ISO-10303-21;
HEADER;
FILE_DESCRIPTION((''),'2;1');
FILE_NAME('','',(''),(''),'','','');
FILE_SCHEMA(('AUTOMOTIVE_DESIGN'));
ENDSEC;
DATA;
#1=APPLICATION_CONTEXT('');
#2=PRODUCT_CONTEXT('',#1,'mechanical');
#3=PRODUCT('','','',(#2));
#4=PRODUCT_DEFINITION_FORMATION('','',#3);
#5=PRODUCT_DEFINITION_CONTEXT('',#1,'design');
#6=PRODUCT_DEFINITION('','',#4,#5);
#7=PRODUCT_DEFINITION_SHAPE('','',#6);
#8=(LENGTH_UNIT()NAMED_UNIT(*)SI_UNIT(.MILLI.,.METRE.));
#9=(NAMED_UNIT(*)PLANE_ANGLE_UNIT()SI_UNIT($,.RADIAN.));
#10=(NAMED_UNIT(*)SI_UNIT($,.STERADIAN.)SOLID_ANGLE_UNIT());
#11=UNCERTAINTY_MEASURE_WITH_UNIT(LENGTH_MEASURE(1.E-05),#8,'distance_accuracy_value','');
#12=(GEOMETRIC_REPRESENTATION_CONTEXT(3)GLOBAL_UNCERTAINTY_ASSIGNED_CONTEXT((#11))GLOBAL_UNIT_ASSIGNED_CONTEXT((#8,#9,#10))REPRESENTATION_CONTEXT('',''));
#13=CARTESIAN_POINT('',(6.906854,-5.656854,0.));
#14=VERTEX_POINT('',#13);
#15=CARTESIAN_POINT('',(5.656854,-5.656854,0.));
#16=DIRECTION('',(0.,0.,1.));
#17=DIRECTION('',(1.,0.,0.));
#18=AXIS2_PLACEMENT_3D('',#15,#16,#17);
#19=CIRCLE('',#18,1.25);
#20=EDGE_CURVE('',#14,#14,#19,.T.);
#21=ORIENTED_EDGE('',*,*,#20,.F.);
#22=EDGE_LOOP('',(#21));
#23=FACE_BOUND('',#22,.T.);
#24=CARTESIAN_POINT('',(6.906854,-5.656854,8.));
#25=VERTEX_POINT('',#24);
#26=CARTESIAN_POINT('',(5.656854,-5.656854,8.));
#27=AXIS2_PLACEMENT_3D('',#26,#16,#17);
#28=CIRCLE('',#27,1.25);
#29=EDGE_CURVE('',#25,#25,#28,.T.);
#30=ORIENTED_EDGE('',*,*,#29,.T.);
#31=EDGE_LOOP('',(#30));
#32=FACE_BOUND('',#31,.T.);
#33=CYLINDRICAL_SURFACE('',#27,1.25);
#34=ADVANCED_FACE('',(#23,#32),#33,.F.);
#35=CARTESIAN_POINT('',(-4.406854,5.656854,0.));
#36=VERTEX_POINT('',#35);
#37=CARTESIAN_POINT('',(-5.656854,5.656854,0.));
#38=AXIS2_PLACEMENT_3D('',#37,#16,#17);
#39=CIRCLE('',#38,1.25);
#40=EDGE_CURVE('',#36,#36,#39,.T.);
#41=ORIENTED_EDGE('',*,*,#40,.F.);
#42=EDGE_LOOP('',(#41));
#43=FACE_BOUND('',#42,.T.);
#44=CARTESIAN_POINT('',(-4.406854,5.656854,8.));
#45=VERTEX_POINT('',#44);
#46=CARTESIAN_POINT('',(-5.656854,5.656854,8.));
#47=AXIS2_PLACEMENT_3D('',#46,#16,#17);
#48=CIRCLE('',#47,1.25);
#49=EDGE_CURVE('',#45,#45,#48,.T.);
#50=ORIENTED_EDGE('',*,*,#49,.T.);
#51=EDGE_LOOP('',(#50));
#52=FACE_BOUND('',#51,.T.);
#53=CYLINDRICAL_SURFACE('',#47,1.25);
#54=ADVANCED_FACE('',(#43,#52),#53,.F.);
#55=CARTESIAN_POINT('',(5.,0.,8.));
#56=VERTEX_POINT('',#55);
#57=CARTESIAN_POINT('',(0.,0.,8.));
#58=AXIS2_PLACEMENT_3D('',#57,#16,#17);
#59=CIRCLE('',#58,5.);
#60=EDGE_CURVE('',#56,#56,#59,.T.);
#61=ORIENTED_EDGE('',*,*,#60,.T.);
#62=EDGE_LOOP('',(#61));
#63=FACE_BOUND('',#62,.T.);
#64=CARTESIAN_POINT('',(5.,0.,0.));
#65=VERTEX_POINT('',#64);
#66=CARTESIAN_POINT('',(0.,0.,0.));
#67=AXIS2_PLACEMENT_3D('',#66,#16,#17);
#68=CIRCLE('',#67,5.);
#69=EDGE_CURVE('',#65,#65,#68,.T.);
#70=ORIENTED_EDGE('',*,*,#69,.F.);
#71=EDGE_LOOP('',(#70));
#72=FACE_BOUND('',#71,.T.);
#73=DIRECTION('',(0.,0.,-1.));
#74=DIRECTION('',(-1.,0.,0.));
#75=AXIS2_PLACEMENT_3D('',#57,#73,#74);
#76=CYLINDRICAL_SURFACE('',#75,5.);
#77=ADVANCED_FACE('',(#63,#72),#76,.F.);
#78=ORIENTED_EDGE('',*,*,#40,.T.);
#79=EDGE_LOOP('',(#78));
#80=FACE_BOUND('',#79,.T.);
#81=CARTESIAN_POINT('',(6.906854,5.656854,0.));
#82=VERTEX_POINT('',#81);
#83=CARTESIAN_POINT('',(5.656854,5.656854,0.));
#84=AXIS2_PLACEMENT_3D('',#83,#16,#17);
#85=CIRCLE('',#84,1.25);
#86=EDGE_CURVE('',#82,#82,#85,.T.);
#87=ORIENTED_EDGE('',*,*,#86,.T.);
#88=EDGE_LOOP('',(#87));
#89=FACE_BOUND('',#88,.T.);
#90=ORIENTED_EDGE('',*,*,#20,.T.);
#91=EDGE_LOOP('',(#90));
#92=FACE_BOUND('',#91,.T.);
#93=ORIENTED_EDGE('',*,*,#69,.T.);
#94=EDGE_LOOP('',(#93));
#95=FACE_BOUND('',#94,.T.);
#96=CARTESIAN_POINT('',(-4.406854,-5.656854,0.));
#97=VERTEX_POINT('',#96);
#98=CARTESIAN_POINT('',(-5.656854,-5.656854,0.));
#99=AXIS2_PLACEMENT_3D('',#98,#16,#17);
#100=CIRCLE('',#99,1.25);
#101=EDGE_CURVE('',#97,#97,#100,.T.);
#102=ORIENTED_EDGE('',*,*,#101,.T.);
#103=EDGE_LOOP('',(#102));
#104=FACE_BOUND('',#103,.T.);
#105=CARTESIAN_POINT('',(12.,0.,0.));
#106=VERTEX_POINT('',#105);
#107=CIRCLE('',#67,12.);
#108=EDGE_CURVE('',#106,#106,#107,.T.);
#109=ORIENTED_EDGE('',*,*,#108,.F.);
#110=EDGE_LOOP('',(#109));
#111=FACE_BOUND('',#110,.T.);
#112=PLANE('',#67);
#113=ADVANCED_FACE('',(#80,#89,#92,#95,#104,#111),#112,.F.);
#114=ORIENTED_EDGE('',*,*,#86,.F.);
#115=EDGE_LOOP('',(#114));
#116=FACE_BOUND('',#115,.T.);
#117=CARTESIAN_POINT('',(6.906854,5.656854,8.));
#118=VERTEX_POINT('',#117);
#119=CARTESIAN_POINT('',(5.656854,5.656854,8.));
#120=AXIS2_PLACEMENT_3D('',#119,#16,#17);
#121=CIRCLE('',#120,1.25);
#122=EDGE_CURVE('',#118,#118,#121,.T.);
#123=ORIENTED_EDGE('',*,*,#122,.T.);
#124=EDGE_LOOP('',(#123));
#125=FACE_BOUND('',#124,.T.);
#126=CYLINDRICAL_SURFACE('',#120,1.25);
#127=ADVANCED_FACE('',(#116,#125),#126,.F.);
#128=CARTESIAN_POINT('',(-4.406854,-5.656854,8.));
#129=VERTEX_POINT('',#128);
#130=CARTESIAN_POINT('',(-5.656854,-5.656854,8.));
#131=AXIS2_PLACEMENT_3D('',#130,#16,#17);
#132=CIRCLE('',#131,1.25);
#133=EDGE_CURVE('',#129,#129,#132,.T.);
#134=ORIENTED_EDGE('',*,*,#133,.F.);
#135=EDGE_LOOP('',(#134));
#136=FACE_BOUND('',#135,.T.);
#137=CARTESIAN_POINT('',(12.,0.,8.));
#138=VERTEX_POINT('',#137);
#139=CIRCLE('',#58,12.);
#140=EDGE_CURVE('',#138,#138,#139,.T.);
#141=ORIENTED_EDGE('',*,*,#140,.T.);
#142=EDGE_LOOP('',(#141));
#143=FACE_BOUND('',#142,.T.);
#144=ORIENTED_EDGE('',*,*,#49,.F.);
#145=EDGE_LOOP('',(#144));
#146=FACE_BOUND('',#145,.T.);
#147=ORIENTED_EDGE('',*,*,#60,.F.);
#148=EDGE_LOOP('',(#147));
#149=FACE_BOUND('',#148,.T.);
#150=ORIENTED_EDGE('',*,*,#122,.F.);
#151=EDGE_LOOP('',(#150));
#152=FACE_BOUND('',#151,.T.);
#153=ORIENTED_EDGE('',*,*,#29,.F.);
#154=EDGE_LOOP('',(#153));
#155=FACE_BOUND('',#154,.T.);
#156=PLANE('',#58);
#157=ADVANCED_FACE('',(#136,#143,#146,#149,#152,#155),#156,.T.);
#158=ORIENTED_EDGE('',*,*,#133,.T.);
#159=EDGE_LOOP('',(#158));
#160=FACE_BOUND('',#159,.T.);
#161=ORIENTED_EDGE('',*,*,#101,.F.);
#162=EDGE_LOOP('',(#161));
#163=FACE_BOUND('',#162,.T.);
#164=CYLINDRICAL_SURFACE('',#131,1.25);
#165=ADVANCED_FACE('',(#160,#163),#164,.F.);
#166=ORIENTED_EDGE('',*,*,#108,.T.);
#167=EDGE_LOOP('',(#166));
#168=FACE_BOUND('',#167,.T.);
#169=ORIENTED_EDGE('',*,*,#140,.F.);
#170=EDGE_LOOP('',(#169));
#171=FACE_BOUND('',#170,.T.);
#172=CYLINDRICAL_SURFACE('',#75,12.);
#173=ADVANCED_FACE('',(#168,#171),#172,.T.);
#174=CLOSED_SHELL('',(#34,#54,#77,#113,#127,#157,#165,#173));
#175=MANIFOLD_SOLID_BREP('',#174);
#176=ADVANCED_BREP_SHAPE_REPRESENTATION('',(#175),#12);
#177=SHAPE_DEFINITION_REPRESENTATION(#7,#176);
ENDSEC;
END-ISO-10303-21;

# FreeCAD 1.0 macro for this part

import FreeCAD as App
import Part
import Sketcher
Q = App.Units.Quantity

doc = App.newDocument("Part")
body = doc.addObject("PartDesign::Body", "Body")

sketch1 = body.newObject("Sketcher::SketchObject", "Sketch")
sketch1.AttachmentSupport = (doc.getObject("XY_Plane"), [""])
sketch1.MapMode = "FlatFace"
sketch1.addGeometry([
    Part.Circle(App.Vector(0, 0, 0), App.Vector(0, 0, 1), 26),
    Part.Circle(App.Vector(0, 0, 0), App.Vector(0, 0, 1), 15),
], False)
sketch1.addConstraint([
    Sketcher.Constraint("Coincident", 0, 3, -1, 1),
    Sketcher.Constraint("Coincident", 1, 3, -1, 1),
    Sketcher.Constraint("Diameter", 0, Q("52 mm")),
    Sketcher.Constraint("Diameter", 1, Q("29.5 mm")),
])
pad1 = body.newObject("PartDesign::Pad", "Pad")
pad1.Profile = sketch1
pad1.Length = 8

sketch2 = body.newObject("Sketcher::SketchObject", "Sketch001")
sketch2.AttachmentSupport = (doc.getObject("YZ_Plane"), [""])
sketch2.MapMode = "FlatFace"
sketch2.AttachmentOffset = App.Placement(App.Vector(0, 0, 18.186533), App.Rotation())
sketch2.addGeometry([
    Part.LineSegment(App.Vector(10.5, 0, 0), App.Vector(10.5, 8, 0)),
    Part.LineSegment(App.Vector(10.5, 8, 0), App.Vector(7.2, 8, 0)),
    Part.LineSegment(App.Vector(7.2, 8, 0), App.Vector(7.2, 4.7, 0)),
    Part.LineSegment(App.Vector(7.2, 4.7, 0), App.Vector(8.8, 4.7, 0)),
    Part.LineSegment(App.Vector(8.8, 4.7, 0), App.Vector(8.8, 0, 0)),
    Part.LineSegment(App.Vector(8.8, 0, 0), App.Vector(10.5, 0, 0)),
], False)
sketch2.addGeometry(Part.LineSegment(App.Vector(10.5, 8, 0), App.Vector(10.5, 0, 0)), True)
sketch2.addConstraint([
    Sketcher.Constraint("Coincident", 0, 2, 1, 1),
    Sketcher.Constraint("Coincident", 1, 2, 2, 1),
    Sketcher.Constraint("Coincident", 2, 2, 3, 1),
    Sketcher.Constraint("Coincident", 3, 2, 4, 1),
    Sketcher.Constraint("Coincident", 4, 2, 5, 1),
    Sketcher.Constraint("Coincident", 5, 2, 0, 1),
    Sketcher.Constraint("Vertical", 0),
    Sketcher.Constraint("Horizontal", 1),
    Sketcher.Constraint("Vertical", 2),
    Sketcher.Constraint("Horizontal", 3),
    Sketcher.Constraint("Vertical", 4),
    Sketcher.Constraint("Horizontal", 5),
    Sketcher.Constraint("Vertical", 6),
    Sketcher.Constraint("Coincident", 6, 1, 0, 2),
    Sketcher.Constraint("PointOnObject", 4, 2, -1),
    Sketcher.Constraint("PointOnObject", 6, 2, -1),
    Sketcher.Constraint("DistanceY", 0, 1, 0, 2, Q("8 mm")),
    Sketcher.Constraint("DistanceX", 5, 1, 5, 2, Q("1.7 mm")),
    Sketcher.Constraint("DistanceY", 2, 2, 2, 1, Q("3.3 mm")),
    Sketcher.Constraint("DistanceX", 1, 2, 1, 1, Q("3.25 mm")),
    Sketcher.Constraint("DistanceX", -1, 1, 0, 2, Q("10.5 mm")),
])
groove = body.newObject("PartDesign::Groove", "Groove")
groove.Profile = sketch2
groove.ReferenceAxis = (sketch2, ["Axis0"])
groove.Angle = 360
doc.recompute()

linearpattern = body.newObject("PartDesign::LinearPattern", "LinearPattern")
linearpattern.Originals = [groove]
linearpattern.Direction = (doc.getObject("Y_Axis"), [""])
linearpattern.Mode = "offset"
linearpattern.Offset = 21
linearpattern.Occurrences = 2
linearpattern.Reversed = True
body.Tip = linearpattern
doc.recompute()

datumline = body.newObject("PartDesign::Line", "DatumLine")
datumline.Placement = App.Placement(App.Vector(0, 0, 0), App.Rotation(App.Vector(0, 0, 1), App.Vector(-0.5, -0.866025404, 0)))
linearpattern2 = body.newObject("PartDesign::LinearPattern", "LinearPattern001")
linearpattern2.Originals = [groove]
linearpattern2.Direction = (datumline, [""])
linearpattern2.Mode = "offset"
linearpattern2.Offset = 36.373067
linearpattern2.Occurrences = 2
body.Tip = linearpattern2
doc.recompute()

datumline2 = body.newObject("PartDesign::Line", "DatumLine001")
datumline2.Placement = App.Placement(App.Vector(0, 0, 0), App.Rotation(App.Vector(0, 0, 1), App.Vector(-0.866025404, -0.5, 0)))
linearpattern3 = body.newObject("PartDesign::LinearPattern", "LinearPattern002")
linearpattern3.Originals = [groove]
linearpattern3.Direction = (datumline2, [""])
linearpattern3.Mode = "offset"
linearpattern3.Offset = 42
linearpattern3.Occurrences = 2
body.Tip = linearpattern3
doc.recompute()

linearpattern4 = body.newObject("PartDesign::LinearPattern", "LinearPattern003")
linearpattern4.Originals = [groove]
linearpattern4.Direction = (doc.getObject("X_Axis"), [""])
linearpattern4.Mode = "offset"
linearpattern4.Offset = 36.373067
linearpattern4.Occurrences = 2
linearpattern4.Reversed = True
body.Tip = linearpattern4
doc.recompute()

datumline3 = body.newObject("PartDesign::Line", "DatumLine002")
datumline3.Placement = App.Placement(App.Vector(0, 0, 0), App.Rotation(App.Vector(0, 0, 1), App.Vector(-0.866025404, 0.5, 0)))
linearpattern5 = body.newObject("PartDesign::LinearPattern", "LinearPattern004")
linearpattern5.Originals = [groove]
linearpattern5.Direction = (datumline3, [""])
linearpattern5.Mode = "offset"
linearpattern5.Offset = 21
linearpattern5.Occurrences = 2
body.Tip = linearpattern5
body2 = doc.addObject("PartDesign::Body", "Body001")

sketch3 = body2.newObject("Sketcher::SketchObject", "Sketch002")
sketch3.AttachmentSupport = (doc.getObject("XY_Plane001"), [""])
sketch3.MapMode = "FlatFace"
sketch3.addGeometry([
    Part.Circle(App.Vector(0, 0, 0), App.Vector(0, 0, 1), 12),
    Part.Circle(App.Vector(0, 0, 0), App.Vector(0, 0, 1), 5),
], False)
sketch3.addConstraint([
    Sketcher.Constraint("Coincident", 0, 3, -1, 1),
    Sketcher.Constraint("Coincident", 1, 3, -1, 1),
    Sketcher.Constraint("Diameter", 0, Q("24 mm")),
    Sketcher.Constraint("Diameter", 1, Q("10 mm")),
])
pad2 = body2.newObject("PartDesign::Pad", "Pad001")
pad2.Profile = sketch3
pad2.Length = 8

sketch4 = body2.newObject("Sketcher::SketchObject", "Sketch003")
sketch4.AttachmentSupport = (doc.getObject("YZ_Plane001"), [""])
sketch4.MapMode = "FlatFace"
sketch4.AttachmentOffset = App.Placement(App.Vector(0, 0, 5.656854), App.Rotation())
sketch4.addGeometry([
    Part.LineSegment(App.Vector(-5.7, 0, 0), App.Vector(-5.7, 8, 0)),
    Part.LineSegment(App.Vector(-5.7, 8, 0), App.Vector(-6.9, 8, 0)),
    Part.LineSegment(App.Vector(-6.9, 8, 0), App.Vector(-6.9, 0, 0)),
    Part.LineSegment(App.Vector(-6.9, 0, 0), App.Vector(-5.7, 0, 0)),
], False)
sketch4.addGeometry(Part.LineSegment(App.Vector(-5.7, 8, 0), App.Vector(-5.7, 0, 0)), True)
sketch4.addConstraint([
    Sketcher.Constraint("Coincident", 0, 2, 1, 1),
    Sketcher.Constraint("Coincident", 1, 2, 2, 1),
    Sketcher.Constraint("Coincident", 2, 2, 3, 1),
    Sketcher.Constraint("Coincident", 3, 2, 0, 1),
    Sketcher.Constraint("Vertical", 0),
    Sketcher.Constraint("Horizontal", 1),
    Sketcher.Constraint("Vertical", 2),
    Sketcher.Constraint("Horizontal", 3),
    Sketcher.Constraint("Vertical", 4),
    Sketcher.Constraint("Coincident", 4, 1, 0, 2),
    Sketcher.Constraint("PointOnObject", 2, 2, -1),
    Sketcher.Constraint("PointOnObject", 4, 2, -1),
    Sketcher.Constraint("DistanceY", 0, 1, 0, 2, Q("8 mm")),
    Sketcher.Constraint("DistanceX", 1, 2, 1, 1, Q("1.25 mm")),
    Sketcher.Constraint("DistanceX", 0, 2, -1, 1, Q("5.656854 mm")),
])
groove2 = body2.newObject("PartDesign::Groove", "Groove001")
groove2.Profile = sketch4
groove2.ReferenceAxis = (sketch4, ["Axis0"])
groove2.Angle = 360
doc.recompute()

linearpattern6 = body2.newObject("PartDesign::LinearPattern", "LinearPattern005")
linearpattern6.Originals = [groove2]
linearpattern6.Direction = (doc.getObject("X_Axis001"), [""])
linearpattern6.Mode = "offset"
linearpattern6.Offset = 11.313708
linearpattern6.Occurrences = 2
linearpattern6.Reversed = True
body2.Tip = linearpattern6
doc.recompute()

datumline4 = body2.newObject("PartDesign::Line", "DatumLine003")
datumline4.Placement = App.Placement(App.Vector(0, 0, 0), App.Rotation(App.Vector(0, 0, 1), App.Vector(-0.707106781, 0.707106781, 0)))
linearpattern7 = body2.newObject("PartDesign::LinearPattern", "LinearPattern006")
linearpattern7.Originals = [groove2]
linearpattern7.Direction = (datumline4, [""])
linearpattern7.Mode = "offset"
linearpattern7.Offset = 16
linearpattern7.Occurrences = 2
body2.Tip = linearpattern7
doc.recompute()

linearpattern8 = body2.newObject("PartDesign::LinearPattern", "LinearPattern007")
linearpattern8.Originals = [groove2]
linearpattern8.Direction = (doc.getObject("Y_Axis001"), [""])
linearpattern8.Mode = "offset"
linearpattern8.Offset = 11.313708
linearpattern8.Occurrences = 2
body2.Tip = linearpattern8
body3 = doc.addObject("PartDesign::Body", "Body002")

sketch5 = body3.newObject("Sketcher::SketchObject", "Sketch004")
sketch5.AttachmentSupport = (doc.getObject("XY_Plane002"), [""])
sketch5.MapMode = "FlatFace"
sketch5.AttachmentOffset = App.Placement(App.Vector(0, 0, 7.25), App.Rotation())
sketch5.addGeometry([
    Part.Circle(App.Vector(0, 0, 0), App.Vector(0, 0, 1), 15),
    Part.Circle(App.Vector(0, 0, 0), App.Vector(0, 0, 1), 12),
], False)
sketch5.addConstraint([
    Sketcher.Constraint("Coincident", 0, 3, -1, 1),
    Sketcher.Constraint("Coincident", 1, 3, -1, 1),
    Sketcher.Constraint("Diameter", 0, Q("29.4 mm")),
    Sketcher.Constraint("Diameter", 1, Q("24.16 mm")),
])
pad3 = body3.newObject("PartDesign::Pad", "Pad002")
pad3.Profile = sketch5
pad3.Length = 0.55
body4 = doc.addObject("PartDesign::Body", "Body003")

sketch6 = body4.newObject("Sketcher::SketchObject", "Sketch005")
sketch6.AttachmentSupport = (doc.getObject("XY_Plane003"), [""])
sketch6.MapMode = "FlatFace"
sketch6.AttachmentOffset = App.Placement(App.Vector(0, 0, 0.2), App.Rotation())
sketch6.addGeometry([
    Part.Circle(App.Vector(0, 0, 0), App.Vector(0, 0, 1), 15),
    Part.Circle(App.Vector(0, 0, 0), App.Vector(0, 0, 1), 12),
], False)
sketch6.addConstraint([
    Sketcher.Constraint("Coincident", 0, 3, -1, 1),
    Sketcher.Constraint("Coincident", 1, 3, -1, 1),
    Sketcher.Constraint("Diameter", 0, Q("29.4 mm")),
    Sketcher.Constraint("Diameter", 1, Q("24.16 mm")),
])
pad4 = body4.newObject("PartDesign::Pad", "Pad003")
pad4.Profile = sketch6
pad4.Length = 0.55
body.Visibility = False
body3.Visibility = False
body4.Visibility = False

doc.recompute()
